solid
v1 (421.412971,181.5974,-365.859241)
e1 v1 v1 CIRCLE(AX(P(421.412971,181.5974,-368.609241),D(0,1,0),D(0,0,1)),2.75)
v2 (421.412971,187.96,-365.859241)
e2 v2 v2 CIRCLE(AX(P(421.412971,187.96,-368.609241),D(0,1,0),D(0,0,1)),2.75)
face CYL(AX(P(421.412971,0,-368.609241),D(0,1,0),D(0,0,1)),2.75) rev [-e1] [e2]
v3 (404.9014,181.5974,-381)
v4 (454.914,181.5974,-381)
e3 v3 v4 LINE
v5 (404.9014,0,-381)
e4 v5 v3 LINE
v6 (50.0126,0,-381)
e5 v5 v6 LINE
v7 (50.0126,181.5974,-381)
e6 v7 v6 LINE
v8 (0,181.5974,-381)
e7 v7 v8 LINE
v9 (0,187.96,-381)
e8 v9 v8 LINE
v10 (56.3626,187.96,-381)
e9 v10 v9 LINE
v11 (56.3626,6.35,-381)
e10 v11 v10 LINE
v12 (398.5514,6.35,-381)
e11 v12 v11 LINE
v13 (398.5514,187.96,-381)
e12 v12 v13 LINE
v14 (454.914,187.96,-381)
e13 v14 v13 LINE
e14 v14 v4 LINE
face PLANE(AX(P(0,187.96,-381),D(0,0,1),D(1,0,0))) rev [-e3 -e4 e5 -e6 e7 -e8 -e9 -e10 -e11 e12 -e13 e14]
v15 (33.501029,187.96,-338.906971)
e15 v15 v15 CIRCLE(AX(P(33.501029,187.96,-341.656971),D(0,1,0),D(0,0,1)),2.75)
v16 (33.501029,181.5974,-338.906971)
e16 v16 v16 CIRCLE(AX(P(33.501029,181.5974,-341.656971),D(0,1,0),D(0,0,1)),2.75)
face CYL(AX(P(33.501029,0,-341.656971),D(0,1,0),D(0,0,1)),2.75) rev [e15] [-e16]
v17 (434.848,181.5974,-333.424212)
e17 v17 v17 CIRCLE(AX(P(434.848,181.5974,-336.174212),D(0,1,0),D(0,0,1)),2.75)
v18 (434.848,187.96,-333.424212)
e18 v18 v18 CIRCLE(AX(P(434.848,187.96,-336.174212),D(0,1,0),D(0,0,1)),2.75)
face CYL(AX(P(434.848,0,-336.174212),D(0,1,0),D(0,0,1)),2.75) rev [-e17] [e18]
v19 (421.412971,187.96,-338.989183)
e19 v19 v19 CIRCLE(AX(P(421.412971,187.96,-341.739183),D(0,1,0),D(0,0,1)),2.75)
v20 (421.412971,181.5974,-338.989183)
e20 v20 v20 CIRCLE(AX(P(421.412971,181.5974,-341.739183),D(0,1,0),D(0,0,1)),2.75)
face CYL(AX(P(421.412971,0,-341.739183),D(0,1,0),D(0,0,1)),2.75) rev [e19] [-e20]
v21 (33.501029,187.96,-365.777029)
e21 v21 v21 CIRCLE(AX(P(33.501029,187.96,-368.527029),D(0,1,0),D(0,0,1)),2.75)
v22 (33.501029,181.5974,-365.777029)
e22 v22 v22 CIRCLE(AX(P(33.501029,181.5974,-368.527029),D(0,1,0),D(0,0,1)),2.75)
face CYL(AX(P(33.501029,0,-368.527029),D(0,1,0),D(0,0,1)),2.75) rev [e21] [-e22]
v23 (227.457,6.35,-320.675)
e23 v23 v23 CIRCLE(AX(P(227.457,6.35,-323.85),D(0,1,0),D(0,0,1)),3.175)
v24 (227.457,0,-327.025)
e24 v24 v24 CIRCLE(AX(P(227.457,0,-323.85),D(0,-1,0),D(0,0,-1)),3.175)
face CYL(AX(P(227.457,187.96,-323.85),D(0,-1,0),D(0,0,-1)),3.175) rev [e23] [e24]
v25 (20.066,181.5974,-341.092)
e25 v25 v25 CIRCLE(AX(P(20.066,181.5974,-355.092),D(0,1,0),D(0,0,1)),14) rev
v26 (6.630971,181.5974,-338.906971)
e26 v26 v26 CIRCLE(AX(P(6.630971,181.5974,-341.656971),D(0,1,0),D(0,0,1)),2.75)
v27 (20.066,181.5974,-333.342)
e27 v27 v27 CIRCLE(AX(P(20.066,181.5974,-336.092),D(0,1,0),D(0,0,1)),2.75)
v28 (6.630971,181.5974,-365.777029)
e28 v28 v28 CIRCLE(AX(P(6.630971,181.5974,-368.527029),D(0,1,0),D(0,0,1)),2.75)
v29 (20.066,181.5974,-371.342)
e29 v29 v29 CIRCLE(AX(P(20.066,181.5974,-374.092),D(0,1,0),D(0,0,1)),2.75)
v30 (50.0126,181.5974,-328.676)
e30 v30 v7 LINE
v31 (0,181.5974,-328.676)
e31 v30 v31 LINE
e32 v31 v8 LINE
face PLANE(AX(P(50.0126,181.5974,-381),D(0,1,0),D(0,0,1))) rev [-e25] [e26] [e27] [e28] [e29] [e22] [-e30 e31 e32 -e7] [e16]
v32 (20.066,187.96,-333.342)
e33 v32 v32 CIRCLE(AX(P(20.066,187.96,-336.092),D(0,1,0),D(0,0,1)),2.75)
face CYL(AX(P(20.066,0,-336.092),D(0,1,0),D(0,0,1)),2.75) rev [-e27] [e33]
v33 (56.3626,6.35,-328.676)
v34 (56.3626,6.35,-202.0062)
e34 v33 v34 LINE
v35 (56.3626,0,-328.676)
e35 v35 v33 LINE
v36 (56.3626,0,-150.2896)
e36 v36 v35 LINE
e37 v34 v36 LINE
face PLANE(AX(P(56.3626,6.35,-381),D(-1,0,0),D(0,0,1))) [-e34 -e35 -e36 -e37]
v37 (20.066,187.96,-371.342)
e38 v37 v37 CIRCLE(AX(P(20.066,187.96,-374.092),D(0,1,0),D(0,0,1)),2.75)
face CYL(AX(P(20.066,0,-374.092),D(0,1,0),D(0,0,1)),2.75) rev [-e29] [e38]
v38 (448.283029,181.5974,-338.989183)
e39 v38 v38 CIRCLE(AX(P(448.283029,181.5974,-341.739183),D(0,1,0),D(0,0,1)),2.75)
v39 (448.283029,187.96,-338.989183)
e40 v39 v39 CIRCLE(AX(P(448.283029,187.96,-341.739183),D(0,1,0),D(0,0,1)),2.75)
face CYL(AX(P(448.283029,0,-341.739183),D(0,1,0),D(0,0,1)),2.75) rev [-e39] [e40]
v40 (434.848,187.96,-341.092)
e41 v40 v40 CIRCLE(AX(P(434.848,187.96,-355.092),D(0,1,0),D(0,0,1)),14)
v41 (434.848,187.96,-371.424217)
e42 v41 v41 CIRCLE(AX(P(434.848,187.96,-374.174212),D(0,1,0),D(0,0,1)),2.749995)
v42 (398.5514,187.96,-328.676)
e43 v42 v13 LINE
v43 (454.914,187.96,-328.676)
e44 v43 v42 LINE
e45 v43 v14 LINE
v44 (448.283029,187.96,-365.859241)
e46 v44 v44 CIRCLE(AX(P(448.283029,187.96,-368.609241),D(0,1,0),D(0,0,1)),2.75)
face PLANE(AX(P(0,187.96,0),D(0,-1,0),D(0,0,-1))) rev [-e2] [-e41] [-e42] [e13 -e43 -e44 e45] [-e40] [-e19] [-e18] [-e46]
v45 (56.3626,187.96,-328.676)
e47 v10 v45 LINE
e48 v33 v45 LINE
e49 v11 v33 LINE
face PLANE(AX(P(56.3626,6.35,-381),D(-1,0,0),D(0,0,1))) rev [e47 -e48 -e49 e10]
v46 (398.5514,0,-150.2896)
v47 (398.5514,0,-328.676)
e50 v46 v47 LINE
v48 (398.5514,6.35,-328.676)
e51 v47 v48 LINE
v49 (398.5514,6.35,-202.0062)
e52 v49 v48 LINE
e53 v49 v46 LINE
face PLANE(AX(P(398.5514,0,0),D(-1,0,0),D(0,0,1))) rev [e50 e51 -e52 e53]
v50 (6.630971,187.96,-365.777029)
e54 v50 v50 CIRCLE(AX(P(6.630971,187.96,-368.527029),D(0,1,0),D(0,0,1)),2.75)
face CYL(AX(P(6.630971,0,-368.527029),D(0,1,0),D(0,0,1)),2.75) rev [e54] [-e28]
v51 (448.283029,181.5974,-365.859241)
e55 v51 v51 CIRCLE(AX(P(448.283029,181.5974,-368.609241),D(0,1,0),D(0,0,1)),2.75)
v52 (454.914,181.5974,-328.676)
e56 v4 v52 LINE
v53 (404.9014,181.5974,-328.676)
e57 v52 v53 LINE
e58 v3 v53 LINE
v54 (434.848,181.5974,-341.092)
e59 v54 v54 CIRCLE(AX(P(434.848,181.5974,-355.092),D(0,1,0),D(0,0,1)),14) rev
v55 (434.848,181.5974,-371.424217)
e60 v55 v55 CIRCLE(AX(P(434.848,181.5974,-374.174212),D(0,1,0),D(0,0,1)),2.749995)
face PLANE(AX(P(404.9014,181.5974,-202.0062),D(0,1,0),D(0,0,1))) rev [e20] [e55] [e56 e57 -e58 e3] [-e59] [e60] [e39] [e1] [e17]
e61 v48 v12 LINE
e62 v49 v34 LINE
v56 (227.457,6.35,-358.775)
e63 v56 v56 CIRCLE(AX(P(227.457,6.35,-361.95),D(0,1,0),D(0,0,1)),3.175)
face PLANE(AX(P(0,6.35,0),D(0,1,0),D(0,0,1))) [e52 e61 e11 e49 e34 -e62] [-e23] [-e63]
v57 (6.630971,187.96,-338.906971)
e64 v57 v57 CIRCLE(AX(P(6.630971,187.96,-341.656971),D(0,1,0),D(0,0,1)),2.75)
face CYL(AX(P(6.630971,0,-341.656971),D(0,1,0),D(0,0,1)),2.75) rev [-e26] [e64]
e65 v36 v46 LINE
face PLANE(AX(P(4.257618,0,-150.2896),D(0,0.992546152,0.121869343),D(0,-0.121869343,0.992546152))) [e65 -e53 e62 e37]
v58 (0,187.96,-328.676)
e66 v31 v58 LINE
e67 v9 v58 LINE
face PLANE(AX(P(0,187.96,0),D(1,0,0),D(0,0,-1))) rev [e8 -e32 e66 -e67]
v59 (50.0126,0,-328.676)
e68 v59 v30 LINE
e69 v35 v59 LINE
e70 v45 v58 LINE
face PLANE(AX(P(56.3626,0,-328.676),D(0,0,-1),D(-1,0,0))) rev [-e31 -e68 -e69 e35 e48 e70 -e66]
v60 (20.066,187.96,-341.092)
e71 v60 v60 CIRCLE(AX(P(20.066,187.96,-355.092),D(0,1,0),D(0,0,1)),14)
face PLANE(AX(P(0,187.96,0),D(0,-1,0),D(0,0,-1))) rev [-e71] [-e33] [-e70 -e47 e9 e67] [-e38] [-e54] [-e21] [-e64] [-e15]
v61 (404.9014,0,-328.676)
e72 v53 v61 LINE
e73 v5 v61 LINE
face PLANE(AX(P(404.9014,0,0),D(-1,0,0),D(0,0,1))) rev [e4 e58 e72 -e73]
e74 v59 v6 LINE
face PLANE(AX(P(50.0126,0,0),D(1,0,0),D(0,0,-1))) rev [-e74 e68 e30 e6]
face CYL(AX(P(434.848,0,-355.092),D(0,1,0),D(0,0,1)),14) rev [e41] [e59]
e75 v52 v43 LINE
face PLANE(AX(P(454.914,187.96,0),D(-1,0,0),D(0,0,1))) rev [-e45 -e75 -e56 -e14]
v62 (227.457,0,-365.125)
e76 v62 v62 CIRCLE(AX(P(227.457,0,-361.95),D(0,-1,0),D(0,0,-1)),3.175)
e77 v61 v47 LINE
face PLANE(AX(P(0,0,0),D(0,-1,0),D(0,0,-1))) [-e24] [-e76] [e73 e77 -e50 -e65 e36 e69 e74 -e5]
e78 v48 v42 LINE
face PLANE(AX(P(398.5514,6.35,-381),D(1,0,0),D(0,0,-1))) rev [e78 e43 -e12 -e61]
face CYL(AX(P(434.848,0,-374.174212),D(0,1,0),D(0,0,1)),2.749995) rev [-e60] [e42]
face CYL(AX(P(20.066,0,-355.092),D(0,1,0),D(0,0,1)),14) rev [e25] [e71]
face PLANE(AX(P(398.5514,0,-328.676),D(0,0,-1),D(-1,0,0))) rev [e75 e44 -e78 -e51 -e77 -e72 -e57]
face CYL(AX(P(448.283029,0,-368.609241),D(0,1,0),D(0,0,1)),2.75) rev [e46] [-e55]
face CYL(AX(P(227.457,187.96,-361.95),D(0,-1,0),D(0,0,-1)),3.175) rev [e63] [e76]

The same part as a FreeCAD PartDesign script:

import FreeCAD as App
import Part
import Sketcher

V = App.Vector
Q = App.Units.Quantity

doc = App.newDocument("Part")
body = doc.addObject("PartDesign::Body", "Body")

sketch1 = body.newObject("Sketcher::SketchObject", "Sketch")
sketch1.AttachmentSupport = (doc.getObject("XZ_Plane"), [""])
sketch1.MapMode = "FlatFace"
sketch1.addGeometry([
    Part.LineSegment(V(0, -381, 0), V(0, 0, 0)),
    Part.LineSegment(V(0, 0, 0), V(455, 0, 0)),
    Part.LineSegment(V(455, 0, 0), V(455, -381, 0)),
    Part.LineSegment(V(455, -381, 0), V(0, -381, 0)),
], False)
sketch1.addConstraint([
    Sketcher.Constraint("Coincident", 0, 2, 1, 1),
    Sketcher.Constraint("Coincident", 1, 2, 2, 1),
    Sketcher.Constraint("Coincident", 2, 2, 3, 1),
    Sketcher.Constraint("Coincident", 3, 2, 0, 1),
    Sketcher.Constraint("Vertical", 0),
    Sketcher.Constraint("Horizontal", 1),
    Sketcher.Constraint("Vertical", 2),
    Sketcher.Constraint("Horizontal", 3),
    Sketcher.Constraint("Coincident", 0, 2, -1, 1),
    Sketcher.Constraint("DistanceY", 0, 1, 0, 2, Q("15 in")),
    Sketcher.Constraint("DistanceX", 1, 1, 1, 2, Q("17.91 in")),
])
pad1 = body.newObject("PartDesign::Pad", "Pad")
pad1.Profile = sketch1
pad1.Length = Q("7.4 in")
pad1.Reversed = True

sketch2 = body.newObject("Sketcher::SketchObject", "Sketch001")
sketch2.AttachmentSupport = (doc.getObject("XZ_Plane"), [""])
sketch2.MapMode = "FlatFace"
sketch2.AttachmentOffset = App.Placement(V(0, 0, -7.4 * 25.4), App.Rotation())
sketch2.addGeometry([
    Part.LineSegment(V(405, -202, 0), V(405, 0, 0)),
    Part.LineSegment(V(405, 0, 0), V(455, 0, 0)),
    Part.LineSegment(V(455, 0, 0), V(455, -202, 0)),
    Part.LineSegment(V(455, -202, 0), V(405, -202, 0)),
    Part.LineSegment(V(0, -202, 0), V(0, 0, 0)),
    Part.LineSegment(V(0, 0, 0), V(50, 0, 0)),
    Part.LineSegment(V(50, 0, 0), V(50, -202, 0)),
    Part.LineSegment(V(50, -202, 0), V(0, -202, 0)),
], False)
sketch2.addConstraint([
    Sketcher.Constraint("Coincident", 0, 2, 1, 1),
    Sketcher.Constraint("Coincident", 1, 2, 2, 1),
    Sketcher.Constraint("Coincident", 2, 2, 3, 1),
    Sketcher.Constraint("Coincident", 3, 2, 0, 1),
    Sketcher.Constraint("Coincident", 4, 2, 5, 1),
    Sketcher.Constraint("Coincident", 5, 2, 6, 1),
    Sketcher.Constraint("Coincident", 6, 2, 7, 1),
    Sketcher.Constraint("Coincident", 7, 2, 4, 1),
    Sketcher.Constraint("Vertical", 0),
    Sketcher.Constraint("Horizontal", 1),
    Sketcher.Constraint("Vertical", 2),
    Sketcher.Constraint("Horizontal", 3),
    Sketcher.Constraint("Vertical", 4),
    Sketcher.Constraint("Horizontal", 5),
    Sketcher.Constraint("Vertical", 6),
    Sketcher.Constraint("Horizontal", 7),
    Sketcher.Constraint("Coincident", 4, 2, -1, 1),
    Sketcher.Constraint("PointOnObject", 0, 2, -1),
    Sketcher.Constraint("Horizontal", 3, 2, 6, 2),
    Sketcher.Constraint("Equal", 3, 5),
    Sketcher.Constraint("DistanceX", 1, 1, 1, 2, Q("1.969 in")),
    Sketcher.Constraint("DistanceY", 0, 1, 0, 2, Q("7.953 in")),
    Sketcher.Constraint("DistanceX", -1, 1, 1, 2, Q("17.91 in")),
])
pocket1 = body.newObject("PartDesign::Pocket", "Pocket")
pocket1.Profile = sketch2
pocket1.Type = "ThroughAll"
pocket1.Reversed = True

sketch3 = body.newObject("Sketcher::SketchObject", "Sketch002")
sketch3.AttachmentSupport = (doc.getObject("XZ_Plane"), [""])
sketch3.MapMode = "FlatFace"
sketch3.AttachmentOffset = App.Placement(V(0, 0, -7.4 * 25.4), App.Rotation())
sketch3.addGeometry([
    Part.Circle(V(20, -355, 0), V(0, 0, 1), 14),
    Part.Circle(V(435, -355, 0), V(0, 0, 1), 14),
], False)
sketch3.addConstraint([
    Sketcher.Constraint("Equal", 0, 1),
    Sketcher.Constraint("Horizontal", 0, 3, 1, 3),
    Sketcher.Constraint("Diameter", 0, 28.0),
    Sketcher.Constraint("DistanceX", -1, 1, 0, 3, Q("0.79 in")),
    Sketcher.Constraint("DistanceY", 0, 3, -1, 1, Q("13.98 in")),
    Sketcher.Constraint("DistanceX", -1, 1, 1, 3, Q("17.12 in")),
])
pocket2 = body.newObject("PartDesign::Pocket", "Pocket001")
pocket2.Profile = sketch3
pocket2.Type = "ThroughAll"
pocket2.Reversed = True

sketch4 = body.newObject("Sketcher::SketchObject", "Sketch003")
sketch4.AttachmentSupport = (doc.getObject("XZ_Plane"), [""])
sketch4.MapMode = "FlatFace"
sketch4.AttachmentOffset = App.Placement(V(0, 0, -7.4 * 25.4), App.Rotation())
sketch4.addGeometry([
    Part.LineSegment(V(56, -381, 0), V(56, 0, 0)),
    Part.LineSegment(V(56, 0, 0), V(399, 0, 0)),
    Part.LineSegment(V(399, 0, 0), V(399, -381, 0)),
    Part.LineSegment(V(399, -381, 0), V(56, -381, 0)),
], False)
sketch4.addConstraint([
    Sketcher.Constraint("Coincident", 0, 2, 1, 1),
    Sketcher.Constraint("Coincident", 1, 2, 2, 1),
    Sketcher.Constraint("Coincident", 2, 2, 3, 1),
    Sketcher.Constraint("Coincident", 3, 2, 0, 1),
    Sketcher.Constraint("Vertical", 0),
    Sketcher.Constraint("Horizontal", 1),
    Sketcher.Constraint("Vertical", 2),
    Sketcher.Constraint("Horizontal", 3),
    Sketcher.Constraint("PointOnObject", 0, 2, -1),
    Sketcher.Constraint("DistanceY", 0, 1, 0, 2, Q("15 in")),
    Sketcher.Constraint("DistanceX", 1, 1, 1, 2, Q("13.472 in")),
    Sketcher.Constraint("DistanceX", -1, 1, 0, 2, Q("2.219 in")),
])
pocket3 = body.newObject("PartDesign::Pocket", "Pocket002")
pocket3.Profile = sketch4
pocket3.Length = Q("7.15 in")
pocket3.Reversed = True

sketch5 = body.newObject("Sketcher::SketchObject", "Sketch004")
sketch5.AttachmentSupport = (doc.getObject("YZ_Plane"), [""])
sketch5.MapMode = "FlatFace"
sketch5.AttachmentOffset = App.Placement(V(0, 0, 17.91 * 25.4), App.Rotation())
sketch5.addGeometry([
    Part.LineSegment(V(182, -202, 0), V(0, -202, 0)),
    Part.LineSegment(V(0, -202, 0), V(0, -381, 0)),
    Part.LineSegment(V(0, -381, 0), V(182, -381, 0)),
    Part.LineSegment(V(182, -381, 0), V(182, -202, 0)),
], False)
sketch5.addConstraint([
    Sketcher.Constraint("Coincident", 0, 2, 1, 1),
    Sketcher.Constraint("Coincident", 1, 2, 2, 1),
    Sketcher.Constraint("Coincident", 2, 2, 3, 1),
    Sketcher.Constraint("Coincident", 3, 2, 0, 1),
    Sketcher.Constraint("Horizontal", 0),
    Sketcher.Constraint("Vertical", 1),
    Sketcher.Constraint("Horizontal", 2),
    Sketcher.Constraint("Vertical", 3),
    Sketcher.Constraint("PointOnObject", 0, 2, -2),
    Sketcher.Constraint("DistanceY", 1, 2, -1, 1, Q("15 in")),
    Sketcher.Constraint("DistanceY", 1, 2, 1, 1, Q("7.047 in")),
    Sketcher.Constraint("DistanceX", 0, 2, 0, 1, 181.5974),
])
pocket4 = body.newObject("PartDesign::Pocket", "Pocket003")
pocket4.Profile = sketch5
pocket4.Length = Q("1.969 in")

sketch6 = body.newObject("Sketcher::SketchObject", "Sketch005")
sketch6.AttachmentSupport = (doc.getObject("YZ_Plane"), [""])
sketch6.MapMode = "FlatFace"
sketch6.addGeometry([
    Part.LineSegment(V(182, -381, 0), V(0, -381, 0)),
    Part.LineSegment(V(0, -381, 0), V(0, -202, 0)),
    Part.LineSegment(V(0, -202, 0), V(182, -202, 0)),
    Part.LineSegment(V(182, -202, 0), V(182, -381, 0)),
], False)
sketch6.addConstraint([
    Sketcher.Constraint("Coincident", 0, 2, 1, 1),
    Sketcher.Constraint("Coincident", 1, 2, 2, 1),
    Sketcher.Constraint("Coincident", 2, 2, 3, 1),
    Sketcher.Constraint("Coincident", 3, 2, 0, 1),
    Sketcher.Constraint("Horizontal", 0),
    Sketcher.Constraint("Vertical", 1),
    Sketcher.Constraint("Horizontal", 2),
    Sketcher.Constraint("Vertical", 3),
    Sketcher.Constraint("PointOnObject", 0, 2, -2),
    Sketcher.Constraint("DistanceY", 0, 2, -1, 1, Q("15 in")),
    Sketcher.Constraint("DistanceY", 1, 1, 1, 2, Q("7.047 in")),
    Sketcher.Constraint("DistanceX", 0, 2, 0, 1, 181.5974),
])
pocket5 = body.newObject("PartDesign::Pocket", "Pocket004")
pocket5.Profile = sketch6
pocket5.Length = Q("1.969 in")
pocket5.Reversed = True

sketch7 = body.newObject("Sketcher::SketchObject", "Sketch006")
sketch7.AttachmentSupport = (doc.getObject("YZ_Plane"), [""])
sketch7.MapMode = "FlatFace"
sketch7.AttachmentOffset = App.Placement(V(0, 0, 15.941 * 25.4), App.Rotation())
sketch7.addGeometry([
    Part.LineSegment(V(188, 0, 0), V(0, 0, 0)),
    Part.LineSegment(V(0, 0, 0), V(0, -202, 0)),
    Part.LineSegment(V(0, -202, 0), V(188, -202, 0)),
    Part.LineSegment(V(188, -202, 0), V(188, 0, 0)),
], False)
sketch7.addConstraint([
    Sketcher.Constraint("Coincident", 0, 2, 1, 1),
    Sketcher.Constraint("Coincident", 1, 2, 2, 1),
    Sketcher.Constraint("Coincident", 2, 2, 3, 1),
    Sketcher.Constraint("Coincident", 3, 2, 0, 1),
    Sketcher.Constraint("Horizontal", 0),
    Sketcher.Constraint("Vertical", 1),
    Sketcher.Constraint("Horizontal", 2),
    Sketcher.Constraint("Vertical", 3),
    Sketcher.Constraint("Coincident", 0, 2, -1, 1),
    Sketcher.Constraint("DistanceX", 0, 2, 0, 1, Q("7.4 in")),
    Sketcher.Constraint("DistanceY", 1, 2, 1, 1, Q("7.953 in")),
])
pocket6 = body.newObject("PartDesign::Pocket", "Pocket005")
pocket6.Profile = sketch7
pocket6.Type = "ThroughAll"

sketch8 = body.newObject("Sketcher::SketchObject", "Sketch007")
sketch8.AttachmentSupport = (doc.getObject("XZ_Plane"), [""])
sketch8.MapMode = "FlatFace"
sketch8.AttachmentOffset = App.Placement(V(0, 0, -7.4 * 25.4), App.Rotation())
sketch8.addGeometry([
    Part.Circle(V(434.8, -374.2, 0), V(0, 0, 1), 2.7),
    Part.Circle(V(448.3, -368.6, 0), V(0, 0, 1), 2.8),
    Part.Circle(V(421.4, -368.6, 0), V(0, 0, 1), 2.8),
    Part.Circle(V(448.3, -341.7, 0), V(0, 0, 1), 2.8),
    Part.Circle(V(434.8, -336.2, 0), V(0, 0, 1), 2.8),
    Part.Circle(V(421.4, -341.7, 0), V(0, 0, 1), 2.8),
], False)
sketch8.addConstraint([
    Sketcher.Constraint("Equal", 1, 2),
    Sketcher.Constraint("Equal", 2, 3),
    Sketcher.Constraint("Equal", 3, 4),
    Sketcher.Constraint("Equal", 4, 5),
    Sketcher.Constraint("Horizontal", 1, 3, 2, 3),
    Sketcher.Constraint("Horizontal", 3, 3, 5, 3),
    Sketcher.Constraint("Vertical", 1, 3, 3, 3),
    Sketcher.Constraint("Vertical", 0, 3, 4, 3),
    Sketcher.Constraint("Vertical", 2, 3, 5, 3),
    Sketcher.Constraint("Diameter", 1, 5.5),
    Sketcher.Constraint("DistanceX", -1, 1, 0, 3, Q("17.12 in")),
    Sketcher.Constraint("Diameter", 0, 5.499989),
    Sketcher.Constraint("DistanceY", 0, 3, 4, 3, 38.0),
    Sketcher.Constraint("DistanceY", 0, 3, -1, 1, 374.174212),
    Sketcher.Constraint("DistanceX", -1, 1, 1, 3, 448.283029),
    Sketcher.Constraint("DistanceY", 1, 3, -1, 1, 368.609241),
    Sketcher.Constraint("DistanceX", -1, 1, 2, 3, 421.412971),
    Sketcher.Constraint("DistanceY", 0, 3, 3, 3, 32.435029),
])
pocket7 = body.newObject("PartDesign::Pocket", "Pocket006")
pocket7.Profile = sketch8
pocket7.Type = "ThroughAll"
pocket7.Reversed = True

sketch9 = body.newObject("Sketcher::SketchObject", "Sketch008")
sketch9.AttachmentSupport = (doc.getObject("XZ_Plane"), [""])
sketch9.MapMode = "FlatFace"
sketch9.AttachmentOffset = App.Placement(V(0, 0, -7.4 * 25.4), App.Rotation())
sketch9.addGeometry([
    Part.Circle(V(20.1, -374.1, 0), V(0, 0, 1), 2.8),
    Part.Circle(V(6.6, -368.5, 0), V(0, 0, 1), 2.8),
    Part.Circle(V(33.5, -368.5, 0), V(0, 0, 1), 2.8),
    Part.Circle(V(33.5, -341.7, 0), V(0, 0, 1), 2.8),
    Part.Circle(V(20.1, -336.1, 0), V(0, 0, 1), 2.8),
    Part.Circle(V(6.6, -341.7, 0), V(0, 0, 1), 2.8),
], False)
sketch9.addConstraint([
    Sketcher.Constraint("Equal", 0, 1),
    Sketcher.Constraint("Equal", 1, 2),
    Sketcher.Constraint("Equal", 2, 3),
    Sketcher.Constraint("Equal", 3, 4),
    Sketcher.Constraint("Equal", 4, 5),
    Sketcher.Constraint("Horizontal", 1, 3, 2, 3),
    Sketcher.Constraint("Horizontal", 3, 3, 5, 3),
    Sketcher.Constraint("Vertical", 2, 3, 3, 3),
    Sketcher.Constraint("Vertical", 0, 3, 4, 3),
    Sketcher.Constraint("Vertical", 1, 3, 5, 3),
    Sketcher.Constraint("Diameter", 0, 5.5),
    Sketcher.Constraint("DistanceX", -1, 1, 0, 3, Q("0.79 in")),
    Sketcher.Constraint("DistanceY", 0, 3, -1, 1, 374.092),
    Sketcher.Constraint("DistanceY", 4, 3, -1, 1, 336.092),
    Sketcher.Constraint("DistanceX", -1, 1, 1, 3, 6.630971),
    Sketcher.Constraint("DistanceY", 1, 3, -1, 1, 368.527029),
    Sketcher.Constraint("DistanceX", -1, 1, 2, 3, 33.501029),
    Sketcher.Constraint("DistanceY", 3, 3, -1, 1, 341.656971),
])
pocket8 = body.newObject("PartDesign::Pocket", "Pocket007")
pocket8.Profile = sketch9
pocket8.Type = "ThroughAll"
pocket8.Reversed = True

sketch10 = body.newObject("Sketcher::SketchObject", "Sketch009")
sketch10.AttachmentSupport = (doc.getObject("YZ_Plane"), [""])
sketch10.MapMode = "FlatFace"
sketch10.AttachmentOffset = App.Placement(V(0, 0, 15.691 * 25.4), App.Rotation())
sketch10.addGeometry([
    Part.LineSegment(V(0, -150, 0), V(0, -202, 0)),
    Part.LineSegment(V(0, -202, 0), V(6, -202, 0)),
    Part.LineSegment(V(6, -202, 0), V(0, -150, 0)),
], False)
sketch10.addConstraint([
    Sketcher.Constraint("Coincident", 0, 2, 1, 1),
    Sketcher.Constraint("Coincident", 1, 2, 2, 1),
    Sketcher.Constraint("Coincident", 2, 2, 0, 1),
    Sketcher.Constraint("Vertical", 0),
    Sketcher.Constraint("Horizontal", 1),
    Sketcher.Constraint("PointOnObject", 0, 2, -2),
    Sketcher.Constraint("Angle", 2, Q("97 deg")),
    Sketcher.Constraint("DistanceX", 1, 1, 1, 2, Q("0.25 in")),
    Sketcher.Constraint("DistanceY", 0, 2, -1, 1, Q("7.953 in")),
])
pad2 = body.newObject("PartDesign::Pad", "Pad001")
pad2.Profile = sketch10
pad2.Length = Q("13.472 in")
pad2.Reversed = True

sketch11 = body.newObject("Sketcher::SketchObject", "Sketch010")
sketch11.AttachmentSupport = (doc.getObject("XZ_Plane"), [""])
sketch11.MapMode = "FlatFace"
sketch11.AttachmentOffset = App.Placement(V(0, 0, -7.4 * 25.4), App.Rotation())
sketch11.addGeometry([
    Part.LineSegment(V(399, -329, 0), V(399, -202, 0)),
    Part.LineSegment(V(399, -202, 0), V(455, -202, 0)),
    Part.LineSegment(V(455, -202, 0), V(455, -329, 0)),
    Part.LineSegment(V(455, -329, 0), V(399, -329, 0)),
    Part.LineSegment(V(0, -329, 0), V(0, -202, 0)),
    Part.LineSegment(V(0, -202, 0), V(56, -202, 0)),
    Part.LineSegment(V(56, -202, 0), V(56, -329, 0)),
    Part.LineSegment(V(56, -329, 0), V(0, -329, 0)),
], False)
sketch11.addConstraint([
    Sketcher.Constraint("Coincident", 0, 2, 1, 1),
    Sketcher.Constraint("Coincident", 1, 2, 2, 1),
    Sketcher.Constraint("Coincident", 2, 2, 3, 1),
    Sketcher.Constraint("Coincident", 3, 2, 0, 1),
    Sketcher.Constraint("Coincident", 4, 2, 5, 1),
    Sketcher.Constraint("Coincident", 5, 2, 6, 1),
    Sketcher.Constraint("Coincident", 6, 2, 7, 1),
    Sketcher.Constraint("Coincident", 7, 2, 4, 1),
    Sketcher.Constraint("Vertical", 0),
    Sketcher.Constraint("Horizontal", 1),
    Sketcher.Constraint("Vertical", 2),
    Sketcher.Constraint("Horizontal", 3),
    Sketcher.Constraint("Vertical", 4),
    Sketcher.Constraint("Horizontal", 5),
    Sketcher.Constraint("Vertical", 6),
    Sketcher.Constraint("Horizontal", 7),
    Sketcher.Constraint("PointOnObject", 4, 2, -2),
    Sketcher.Constraint("Horizontal", 1, 2, 4, 2),
    Sketcher.Constraint("Horizontal", 3, 2, 6, 2),
    Sketcher.Constraint("Equal", 3, 5),
    Sketcher.Constraint("DistanceX", 1, 1, 1, 2, Q("2.219 in")),
    Sketcher.Constraint("DistanceY", 0, 1, 0, 2, Q("4.987 in")),
    Sketcher.Constraint("DistanceX", -1, 1, 1, 2, Q("17.91 in")),
    Sketcher.Constraint("DistanceY", 2, 2, -1, 1, Q("12.94 in")),
])
pocket9 = body.newObject("PartDesign::Pocket", "Pocket008")
pocket9.Profile = sketch11
pocket9.Type = "ThroughAll"
pocket9.Reversed = True

sketch12 = body.newObject("Sketcher::SketchObject", "Sketch011")
sketch12.AttachmentSupport = (doc.getObject("XZ_Plane"), [""])
sketch12.MapMode = "FlatFace"
sketch12.addGeometry([
    Part.Circle(V(227.5, -361.9, 0), V(0, 0, 1), 3.2),
    Part.Circle(V(227.5, -323.9, 0), V(0, 0, 1), 3.2),
], False)
sketch12.addConstraint([
    Sketcher.Constraint("Equal", 0, 1),
    Sketcher.Constraint("Vertical", 0, 3, 1, 3),
    Sketcher.Constraint("Diameter", 0, Q("0.25 in")),
    Sketcher.Constraint("DistanceY", 0, 3, 1, 3, Q("1.5 in")),
    Sketcher.Constraint("DistanceY", 0, 3, -1, 1, Q("14.25 in")),
    Sketcher.Constraint("DistanceX", -1, 1, 0, 3, Q("8.955 in")),
])
pocket10 = body.newObject("PartDesign::Pocket", "Pocket009")
pocket10.Profile = sketch12
pocket10.Type = "ThroughAll"

doc.recompute()
